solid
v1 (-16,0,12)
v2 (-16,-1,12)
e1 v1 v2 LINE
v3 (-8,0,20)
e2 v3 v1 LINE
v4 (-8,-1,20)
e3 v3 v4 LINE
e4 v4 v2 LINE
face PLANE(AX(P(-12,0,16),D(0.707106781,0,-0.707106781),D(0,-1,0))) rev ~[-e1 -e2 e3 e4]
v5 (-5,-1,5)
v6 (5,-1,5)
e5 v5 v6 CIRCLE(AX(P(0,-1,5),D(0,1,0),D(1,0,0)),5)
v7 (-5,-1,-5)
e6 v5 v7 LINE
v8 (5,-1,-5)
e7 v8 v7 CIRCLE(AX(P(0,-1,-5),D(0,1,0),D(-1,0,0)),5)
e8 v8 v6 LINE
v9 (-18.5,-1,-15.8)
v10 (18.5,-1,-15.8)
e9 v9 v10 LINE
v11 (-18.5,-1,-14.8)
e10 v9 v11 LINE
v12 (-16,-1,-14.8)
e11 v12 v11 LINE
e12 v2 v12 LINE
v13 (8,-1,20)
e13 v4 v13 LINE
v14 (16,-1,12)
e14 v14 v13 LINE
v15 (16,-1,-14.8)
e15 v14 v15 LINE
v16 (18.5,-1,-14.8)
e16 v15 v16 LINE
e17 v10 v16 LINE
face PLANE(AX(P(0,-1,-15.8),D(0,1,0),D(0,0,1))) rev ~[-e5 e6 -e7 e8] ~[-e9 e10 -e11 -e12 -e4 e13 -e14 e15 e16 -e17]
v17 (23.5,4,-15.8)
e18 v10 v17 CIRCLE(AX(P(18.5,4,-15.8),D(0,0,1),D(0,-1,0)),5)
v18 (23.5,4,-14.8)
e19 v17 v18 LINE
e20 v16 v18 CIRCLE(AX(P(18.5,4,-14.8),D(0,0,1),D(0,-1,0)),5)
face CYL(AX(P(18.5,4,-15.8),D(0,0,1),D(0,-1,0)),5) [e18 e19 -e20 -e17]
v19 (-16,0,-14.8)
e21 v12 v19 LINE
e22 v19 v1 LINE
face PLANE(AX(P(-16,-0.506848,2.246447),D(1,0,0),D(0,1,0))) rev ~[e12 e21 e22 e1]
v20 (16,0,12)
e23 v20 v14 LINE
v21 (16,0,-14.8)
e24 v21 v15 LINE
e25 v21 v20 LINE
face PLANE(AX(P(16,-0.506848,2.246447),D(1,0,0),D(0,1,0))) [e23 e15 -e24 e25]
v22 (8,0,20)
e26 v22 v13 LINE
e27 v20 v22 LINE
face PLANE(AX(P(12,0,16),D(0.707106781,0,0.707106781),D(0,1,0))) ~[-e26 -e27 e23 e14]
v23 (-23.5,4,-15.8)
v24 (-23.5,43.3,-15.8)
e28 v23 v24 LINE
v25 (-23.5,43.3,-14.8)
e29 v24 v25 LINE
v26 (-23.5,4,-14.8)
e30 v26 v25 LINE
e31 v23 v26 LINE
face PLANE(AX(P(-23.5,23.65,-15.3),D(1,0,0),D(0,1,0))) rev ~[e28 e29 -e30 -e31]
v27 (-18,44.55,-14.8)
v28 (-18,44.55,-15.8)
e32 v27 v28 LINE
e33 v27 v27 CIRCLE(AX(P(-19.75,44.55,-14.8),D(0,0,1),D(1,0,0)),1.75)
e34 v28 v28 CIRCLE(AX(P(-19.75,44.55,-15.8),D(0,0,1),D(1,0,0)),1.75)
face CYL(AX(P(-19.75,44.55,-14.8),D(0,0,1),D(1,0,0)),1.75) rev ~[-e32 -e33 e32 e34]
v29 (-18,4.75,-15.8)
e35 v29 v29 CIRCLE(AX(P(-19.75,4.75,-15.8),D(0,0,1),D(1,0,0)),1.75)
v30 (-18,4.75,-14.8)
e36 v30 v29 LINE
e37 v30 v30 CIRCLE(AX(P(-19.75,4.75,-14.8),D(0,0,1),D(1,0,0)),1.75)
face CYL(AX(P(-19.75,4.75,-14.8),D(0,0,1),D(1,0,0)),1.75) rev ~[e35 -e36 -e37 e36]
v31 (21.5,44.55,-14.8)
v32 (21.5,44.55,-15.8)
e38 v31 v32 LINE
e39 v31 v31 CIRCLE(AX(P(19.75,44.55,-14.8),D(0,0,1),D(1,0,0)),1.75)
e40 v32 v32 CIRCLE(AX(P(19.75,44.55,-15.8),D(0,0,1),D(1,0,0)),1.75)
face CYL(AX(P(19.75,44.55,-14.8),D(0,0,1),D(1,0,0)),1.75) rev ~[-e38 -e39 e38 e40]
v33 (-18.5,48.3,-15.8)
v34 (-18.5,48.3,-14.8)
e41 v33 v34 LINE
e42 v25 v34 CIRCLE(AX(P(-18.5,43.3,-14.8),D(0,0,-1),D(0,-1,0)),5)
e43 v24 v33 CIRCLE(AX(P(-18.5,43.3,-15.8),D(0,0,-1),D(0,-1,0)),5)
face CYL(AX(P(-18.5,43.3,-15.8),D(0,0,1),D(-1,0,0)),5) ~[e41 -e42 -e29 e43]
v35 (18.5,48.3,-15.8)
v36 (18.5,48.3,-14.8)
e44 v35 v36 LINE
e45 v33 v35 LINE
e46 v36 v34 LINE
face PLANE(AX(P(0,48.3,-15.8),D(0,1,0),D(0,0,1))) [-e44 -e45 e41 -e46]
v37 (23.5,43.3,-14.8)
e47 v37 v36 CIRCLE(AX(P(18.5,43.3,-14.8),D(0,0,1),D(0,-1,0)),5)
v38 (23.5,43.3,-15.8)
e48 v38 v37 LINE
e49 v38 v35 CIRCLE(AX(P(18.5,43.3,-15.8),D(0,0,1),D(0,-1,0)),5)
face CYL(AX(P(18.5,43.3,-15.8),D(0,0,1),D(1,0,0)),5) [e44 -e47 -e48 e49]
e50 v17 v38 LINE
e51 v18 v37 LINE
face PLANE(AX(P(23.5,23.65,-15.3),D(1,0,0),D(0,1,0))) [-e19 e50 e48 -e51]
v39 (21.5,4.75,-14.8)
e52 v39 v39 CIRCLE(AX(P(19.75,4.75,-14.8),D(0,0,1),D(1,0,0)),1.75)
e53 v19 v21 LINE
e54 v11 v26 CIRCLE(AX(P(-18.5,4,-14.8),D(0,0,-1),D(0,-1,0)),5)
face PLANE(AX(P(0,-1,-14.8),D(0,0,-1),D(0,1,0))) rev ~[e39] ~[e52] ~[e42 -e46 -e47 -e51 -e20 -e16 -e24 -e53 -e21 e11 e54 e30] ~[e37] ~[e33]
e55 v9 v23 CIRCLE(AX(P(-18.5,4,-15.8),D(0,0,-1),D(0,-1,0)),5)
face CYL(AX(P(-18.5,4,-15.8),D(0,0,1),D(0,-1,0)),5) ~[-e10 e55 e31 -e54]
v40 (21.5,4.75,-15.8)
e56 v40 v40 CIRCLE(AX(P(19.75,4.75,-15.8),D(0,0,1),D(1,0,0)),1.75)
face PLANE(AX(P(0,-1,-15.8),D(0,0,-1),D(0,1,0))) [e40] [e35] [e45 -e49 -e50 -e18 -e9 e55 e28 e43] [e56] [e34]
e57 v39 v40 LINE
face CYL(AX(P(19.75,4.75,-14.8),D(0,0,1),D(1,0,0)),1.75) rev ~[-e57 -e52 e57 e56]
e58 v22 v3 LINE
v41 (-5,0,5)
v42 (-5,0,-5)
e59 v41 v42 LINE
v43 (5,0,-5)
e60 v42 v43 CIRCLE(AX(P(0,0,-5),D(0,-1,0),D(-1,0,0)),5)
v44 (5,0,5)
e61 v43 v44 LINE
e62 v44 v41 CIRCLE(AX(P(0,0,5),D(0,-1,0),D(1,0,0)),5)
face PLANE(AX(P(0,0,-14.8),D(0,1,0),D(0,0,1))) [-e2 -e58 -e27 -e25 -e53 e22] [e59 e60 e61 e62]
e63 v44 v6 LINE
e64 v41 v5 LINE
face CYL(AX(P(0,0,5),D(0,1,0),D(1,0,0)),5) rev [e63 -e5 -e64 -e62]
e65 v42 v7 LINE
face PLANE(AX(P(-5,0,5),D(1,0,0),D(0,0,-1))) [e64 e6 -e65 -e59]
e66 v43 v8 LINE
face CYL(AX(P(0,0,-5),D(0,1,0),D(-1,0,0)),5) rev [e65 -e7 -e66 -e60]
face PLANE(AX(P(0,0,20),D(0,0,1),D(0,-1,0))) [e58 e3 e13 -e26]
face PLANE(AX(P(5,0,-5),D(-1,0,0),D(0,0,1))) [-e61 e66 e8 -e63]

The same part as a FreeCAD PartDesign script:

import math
import FreeCAD as App
import Part
import Sketcher
Q = App.Units.Quantity


def edges_at(feature, points):
    """Names of the edges that pass closest to the given points."""
    edges = feature.Shape.Edges
    near = lambda p: min(range(len(edges)), key=lambda i: edges[i].distToShape(Part.Vertex(*p))[0])
    return sorted({f"Edge{near(p) + 1}" for p in points})


def add_polygon(sketch, points):
    """Adds a closed chain of lines whose ends are joined by coincident constraints."""
    first, n = sketch.GeometryCount, len(points)
    for a, b in zip(points, points[1:] + points[:1]):
        sketch.addGeometry(Part.LineSegment(App.Vector(*a, 0), App.Vector(*b, 0)), False)
    for i in range(n):
        sketch.addConstraint(Sketcher.Constraint("Coincident", first + i, 2, first + (i + 1) % n, 1))

doc = App.newDocument("Part")
body = doc.addObject("PartDesign::Body", "Body")

# Sketch on YZ plane
sketch1 = body.newObject("Sketcher::SketchObject", "Sketch")
sketch1.AttachmentSupport = (doc.getObject("YZ_Plane"), [""])
sketch1.MapMode = "FlatFace"
add_polygon(sketch1, [(0, 20), (-1, 20), (-1, -15.8), (0, -14.8)])  # lines 0-3
sketch1.addConstraint([
    Sketcher.Constraint("Horizontal", 0),
    Sketcher.Constraint("Vertical", 1),
    Sketcher.Constraint("Vertical", 3),
    Sketcher.Constraint("PointOnObject", 2, 2, -2),
    Sketcher.Constraint("DistanceX", 0, 2, 0, 1, 1.0),
    Sketcher.Constraint("Angle", 2, Q("45 deg")),
    Sketcher.Constraint("DistanceY", 1, 2, 1, 1, 35.8),
    Sketcher.Constraint("DistanceY", -1, 1, 0, 2, 20.0),
])
pad1 = body.newObject("PartDesign::Pad", "Pad")
pad1.Profile = sketch1
pad1.Type = "TwoLengths"
pad1.Length = 16
pad1.Length2 = 16

# Sketch on YZ plane
sketch2 = body.newObject("Sketcher::SketchObject", "Sketch001")
sketch2.AttachmentSupport = (doc.getObject("YZ_Plane"), [""])
sketch2.MapMode = "FlatFace"
add_polygon(sketch2, [(-1, -14.8), (-1, -15.8), (48.3, -15.8), (48.3, -14.8)])  # lines 0-3
sketch2.addConstraint([
    Sketcher.Constraint("Vertical", 0),
    Sketcher.Constraint("Horizontal", 1),
    Sketcher.Constraint("Vertical", 2),
    Sketcher.Constraint("Horizontal", 3),
    Sketcher.Constraint("DistanceY", 0, 2, 0, 1, 1.0),
    Sketcher.Constraint("DistanceX", 1, 1, 1, 2, 49.3),
    Sketcher.Constraint("DistanceX", 0, 2, -1, 1, 1.0),
    Sketcher.Constraint("DistanceY", 0, 2, -1, 1, 15.8),
])
pad2 = body.newObject("PartDesign::Pad", "Pad001")
pad2.Profile = sketch2
pad2.Type = "TwoLengths"
pad2.Length = 23.5
pad2.Length2 = 23.5
doc.recompute()

chamfer = body.newObject("PartDesign::Chamfer", "Chamfer")
chamfer.Base = (pad2, edges_at(pad2, [(-16, -0.5, 20), (16, -0.5, 20)]))
chamfer.Size = 8

# Sketch on XZ plane
sketch3 = body.newObject("Sketcher::SketchObject", "Sketch002")
sketch3.AttachmentSupport = (doc.getObject("XZ_Plane"), [""])
sketch3.MapMode = "FlatFace"
sketch3.addGeometry([
    Part.LineSegment(App.Vector(5, -5, 0), App.Vector(5, 5, 0)),
    Part.ArcOfCircle(Part.Circle(App.Vector(0, 5, 0), App.Vector(0, 0, 1), 5), math.radians(0), math.radians(180)),
    Part.LineSegment(App.Vector(-5, 5, 0), App.Vector(-5, -5, 0)),
    Part.ArcOfCircle(Part.Circle(App.Vector(0, -5, 0), App.Vector(0, 0, 1), 5), math.radians(180), math.radians(360)),
], False)
sketch3.addConstraint([
    Sketcher.Constraint("Tangent", 0, 2, 1, 1),
    Sketcher.Constraint("Tangent", 1, 2, 2, 1),
    Sketcher.Constraint("Tangent", 2, 2, 3, 1),
    Sketcher.Constraint("Tangent", 3, 2, 0, 1),
    Sketcher.Constraint("Vertical", 0),
    Sketcher.Constraint("Vertical", 2),
    Sketcher.Constraint("Symmetric", 1, 3, 3, 3, -1, 1),
    Sketcher.Constraint("Radius", 1, 5.0),
    Sketcher.Constraint("DistanceY", 0, 1, 0, 2, 10.0),
])
pocket1 = body.newObject("PartDesign::Pocket", "Pocket")
pocket1.Profile = sketch3
pocket1.Length = 5
pocket1.Reversed = True
doc.recompute()

fillet = body.newObject("PartDesign::Fillet", "Fillet")
fillet.Base = (pocket1, edges_at(pocket1, [
    (23.5, 48.3, -15.3),
    (-23.5, 48.3, -15.3),
    (23.5, -1, -15.3),
    (-23.5, -1, -15.3),
]))
fillet.Radius = 5

# Sketch on XY plane
sketch4 = body.newObject("Sketcher::SketchObject", "Sketch003")
sketch4.AttachmentSupport = (doc.getObject("XY_Plane"), [""])
sketch4.MapMode = "FlatFace"
sketch4.AttachmentOffset = App.Placement(App.Vector(0, 0, -14.8), App.Rotation())
sketch4.addGeometry([
    Part.Circle(App.Vector(-19.8, 44.5, 0), App.Vector(0, 0, 1), 1.8),
    Part.Circle(App.Vector(-19.8, 4.8, 0), App.Vector(0, 0, 1), 1.8),
    Part.Circle(App.Vector(19.8, 4.8, 0), App.Vector(0, 0, 1), 1.8),
    Part.Circle(App.Vector(19.8, 44.5, 0), App.Vector(0, 0, 1), 1.8),
], False)
sketch4.addConstraint([
    Sketcher.Constraint("Equal", 0, 1),
    Sketcher.Constraint("Equal", 1, 2),
    Sketcher.Constraint("Equal", 2, 3),
    Sketcher.Constraint("Symmetric", 1, 3, 2, 3, -2),
    Sketcher.Constraint("Symmetric", 0, 3, 3, 3, -2),
    Sketcher.Constraint("Vertical", 0, 3, 1, 3),
    Sketcher.Constraint("Diameter", 0, 3.5),
    Sketcher.Constraint("DistanceY", 1, 3, 0, 3, 39.8),
    Sketcher.Constraint("DistanceX", 1, 3, 2, 3, 39.5),
    Sketcher.Constraint("DistanceY", -1, 1, 0, 3, 44.55),
])
pocket2 = body.newObject("PartDesign::Pocket", "Pocket001")
pocket2.Profile = sketch4
pocket2.Length = 25

doc.recompute()
